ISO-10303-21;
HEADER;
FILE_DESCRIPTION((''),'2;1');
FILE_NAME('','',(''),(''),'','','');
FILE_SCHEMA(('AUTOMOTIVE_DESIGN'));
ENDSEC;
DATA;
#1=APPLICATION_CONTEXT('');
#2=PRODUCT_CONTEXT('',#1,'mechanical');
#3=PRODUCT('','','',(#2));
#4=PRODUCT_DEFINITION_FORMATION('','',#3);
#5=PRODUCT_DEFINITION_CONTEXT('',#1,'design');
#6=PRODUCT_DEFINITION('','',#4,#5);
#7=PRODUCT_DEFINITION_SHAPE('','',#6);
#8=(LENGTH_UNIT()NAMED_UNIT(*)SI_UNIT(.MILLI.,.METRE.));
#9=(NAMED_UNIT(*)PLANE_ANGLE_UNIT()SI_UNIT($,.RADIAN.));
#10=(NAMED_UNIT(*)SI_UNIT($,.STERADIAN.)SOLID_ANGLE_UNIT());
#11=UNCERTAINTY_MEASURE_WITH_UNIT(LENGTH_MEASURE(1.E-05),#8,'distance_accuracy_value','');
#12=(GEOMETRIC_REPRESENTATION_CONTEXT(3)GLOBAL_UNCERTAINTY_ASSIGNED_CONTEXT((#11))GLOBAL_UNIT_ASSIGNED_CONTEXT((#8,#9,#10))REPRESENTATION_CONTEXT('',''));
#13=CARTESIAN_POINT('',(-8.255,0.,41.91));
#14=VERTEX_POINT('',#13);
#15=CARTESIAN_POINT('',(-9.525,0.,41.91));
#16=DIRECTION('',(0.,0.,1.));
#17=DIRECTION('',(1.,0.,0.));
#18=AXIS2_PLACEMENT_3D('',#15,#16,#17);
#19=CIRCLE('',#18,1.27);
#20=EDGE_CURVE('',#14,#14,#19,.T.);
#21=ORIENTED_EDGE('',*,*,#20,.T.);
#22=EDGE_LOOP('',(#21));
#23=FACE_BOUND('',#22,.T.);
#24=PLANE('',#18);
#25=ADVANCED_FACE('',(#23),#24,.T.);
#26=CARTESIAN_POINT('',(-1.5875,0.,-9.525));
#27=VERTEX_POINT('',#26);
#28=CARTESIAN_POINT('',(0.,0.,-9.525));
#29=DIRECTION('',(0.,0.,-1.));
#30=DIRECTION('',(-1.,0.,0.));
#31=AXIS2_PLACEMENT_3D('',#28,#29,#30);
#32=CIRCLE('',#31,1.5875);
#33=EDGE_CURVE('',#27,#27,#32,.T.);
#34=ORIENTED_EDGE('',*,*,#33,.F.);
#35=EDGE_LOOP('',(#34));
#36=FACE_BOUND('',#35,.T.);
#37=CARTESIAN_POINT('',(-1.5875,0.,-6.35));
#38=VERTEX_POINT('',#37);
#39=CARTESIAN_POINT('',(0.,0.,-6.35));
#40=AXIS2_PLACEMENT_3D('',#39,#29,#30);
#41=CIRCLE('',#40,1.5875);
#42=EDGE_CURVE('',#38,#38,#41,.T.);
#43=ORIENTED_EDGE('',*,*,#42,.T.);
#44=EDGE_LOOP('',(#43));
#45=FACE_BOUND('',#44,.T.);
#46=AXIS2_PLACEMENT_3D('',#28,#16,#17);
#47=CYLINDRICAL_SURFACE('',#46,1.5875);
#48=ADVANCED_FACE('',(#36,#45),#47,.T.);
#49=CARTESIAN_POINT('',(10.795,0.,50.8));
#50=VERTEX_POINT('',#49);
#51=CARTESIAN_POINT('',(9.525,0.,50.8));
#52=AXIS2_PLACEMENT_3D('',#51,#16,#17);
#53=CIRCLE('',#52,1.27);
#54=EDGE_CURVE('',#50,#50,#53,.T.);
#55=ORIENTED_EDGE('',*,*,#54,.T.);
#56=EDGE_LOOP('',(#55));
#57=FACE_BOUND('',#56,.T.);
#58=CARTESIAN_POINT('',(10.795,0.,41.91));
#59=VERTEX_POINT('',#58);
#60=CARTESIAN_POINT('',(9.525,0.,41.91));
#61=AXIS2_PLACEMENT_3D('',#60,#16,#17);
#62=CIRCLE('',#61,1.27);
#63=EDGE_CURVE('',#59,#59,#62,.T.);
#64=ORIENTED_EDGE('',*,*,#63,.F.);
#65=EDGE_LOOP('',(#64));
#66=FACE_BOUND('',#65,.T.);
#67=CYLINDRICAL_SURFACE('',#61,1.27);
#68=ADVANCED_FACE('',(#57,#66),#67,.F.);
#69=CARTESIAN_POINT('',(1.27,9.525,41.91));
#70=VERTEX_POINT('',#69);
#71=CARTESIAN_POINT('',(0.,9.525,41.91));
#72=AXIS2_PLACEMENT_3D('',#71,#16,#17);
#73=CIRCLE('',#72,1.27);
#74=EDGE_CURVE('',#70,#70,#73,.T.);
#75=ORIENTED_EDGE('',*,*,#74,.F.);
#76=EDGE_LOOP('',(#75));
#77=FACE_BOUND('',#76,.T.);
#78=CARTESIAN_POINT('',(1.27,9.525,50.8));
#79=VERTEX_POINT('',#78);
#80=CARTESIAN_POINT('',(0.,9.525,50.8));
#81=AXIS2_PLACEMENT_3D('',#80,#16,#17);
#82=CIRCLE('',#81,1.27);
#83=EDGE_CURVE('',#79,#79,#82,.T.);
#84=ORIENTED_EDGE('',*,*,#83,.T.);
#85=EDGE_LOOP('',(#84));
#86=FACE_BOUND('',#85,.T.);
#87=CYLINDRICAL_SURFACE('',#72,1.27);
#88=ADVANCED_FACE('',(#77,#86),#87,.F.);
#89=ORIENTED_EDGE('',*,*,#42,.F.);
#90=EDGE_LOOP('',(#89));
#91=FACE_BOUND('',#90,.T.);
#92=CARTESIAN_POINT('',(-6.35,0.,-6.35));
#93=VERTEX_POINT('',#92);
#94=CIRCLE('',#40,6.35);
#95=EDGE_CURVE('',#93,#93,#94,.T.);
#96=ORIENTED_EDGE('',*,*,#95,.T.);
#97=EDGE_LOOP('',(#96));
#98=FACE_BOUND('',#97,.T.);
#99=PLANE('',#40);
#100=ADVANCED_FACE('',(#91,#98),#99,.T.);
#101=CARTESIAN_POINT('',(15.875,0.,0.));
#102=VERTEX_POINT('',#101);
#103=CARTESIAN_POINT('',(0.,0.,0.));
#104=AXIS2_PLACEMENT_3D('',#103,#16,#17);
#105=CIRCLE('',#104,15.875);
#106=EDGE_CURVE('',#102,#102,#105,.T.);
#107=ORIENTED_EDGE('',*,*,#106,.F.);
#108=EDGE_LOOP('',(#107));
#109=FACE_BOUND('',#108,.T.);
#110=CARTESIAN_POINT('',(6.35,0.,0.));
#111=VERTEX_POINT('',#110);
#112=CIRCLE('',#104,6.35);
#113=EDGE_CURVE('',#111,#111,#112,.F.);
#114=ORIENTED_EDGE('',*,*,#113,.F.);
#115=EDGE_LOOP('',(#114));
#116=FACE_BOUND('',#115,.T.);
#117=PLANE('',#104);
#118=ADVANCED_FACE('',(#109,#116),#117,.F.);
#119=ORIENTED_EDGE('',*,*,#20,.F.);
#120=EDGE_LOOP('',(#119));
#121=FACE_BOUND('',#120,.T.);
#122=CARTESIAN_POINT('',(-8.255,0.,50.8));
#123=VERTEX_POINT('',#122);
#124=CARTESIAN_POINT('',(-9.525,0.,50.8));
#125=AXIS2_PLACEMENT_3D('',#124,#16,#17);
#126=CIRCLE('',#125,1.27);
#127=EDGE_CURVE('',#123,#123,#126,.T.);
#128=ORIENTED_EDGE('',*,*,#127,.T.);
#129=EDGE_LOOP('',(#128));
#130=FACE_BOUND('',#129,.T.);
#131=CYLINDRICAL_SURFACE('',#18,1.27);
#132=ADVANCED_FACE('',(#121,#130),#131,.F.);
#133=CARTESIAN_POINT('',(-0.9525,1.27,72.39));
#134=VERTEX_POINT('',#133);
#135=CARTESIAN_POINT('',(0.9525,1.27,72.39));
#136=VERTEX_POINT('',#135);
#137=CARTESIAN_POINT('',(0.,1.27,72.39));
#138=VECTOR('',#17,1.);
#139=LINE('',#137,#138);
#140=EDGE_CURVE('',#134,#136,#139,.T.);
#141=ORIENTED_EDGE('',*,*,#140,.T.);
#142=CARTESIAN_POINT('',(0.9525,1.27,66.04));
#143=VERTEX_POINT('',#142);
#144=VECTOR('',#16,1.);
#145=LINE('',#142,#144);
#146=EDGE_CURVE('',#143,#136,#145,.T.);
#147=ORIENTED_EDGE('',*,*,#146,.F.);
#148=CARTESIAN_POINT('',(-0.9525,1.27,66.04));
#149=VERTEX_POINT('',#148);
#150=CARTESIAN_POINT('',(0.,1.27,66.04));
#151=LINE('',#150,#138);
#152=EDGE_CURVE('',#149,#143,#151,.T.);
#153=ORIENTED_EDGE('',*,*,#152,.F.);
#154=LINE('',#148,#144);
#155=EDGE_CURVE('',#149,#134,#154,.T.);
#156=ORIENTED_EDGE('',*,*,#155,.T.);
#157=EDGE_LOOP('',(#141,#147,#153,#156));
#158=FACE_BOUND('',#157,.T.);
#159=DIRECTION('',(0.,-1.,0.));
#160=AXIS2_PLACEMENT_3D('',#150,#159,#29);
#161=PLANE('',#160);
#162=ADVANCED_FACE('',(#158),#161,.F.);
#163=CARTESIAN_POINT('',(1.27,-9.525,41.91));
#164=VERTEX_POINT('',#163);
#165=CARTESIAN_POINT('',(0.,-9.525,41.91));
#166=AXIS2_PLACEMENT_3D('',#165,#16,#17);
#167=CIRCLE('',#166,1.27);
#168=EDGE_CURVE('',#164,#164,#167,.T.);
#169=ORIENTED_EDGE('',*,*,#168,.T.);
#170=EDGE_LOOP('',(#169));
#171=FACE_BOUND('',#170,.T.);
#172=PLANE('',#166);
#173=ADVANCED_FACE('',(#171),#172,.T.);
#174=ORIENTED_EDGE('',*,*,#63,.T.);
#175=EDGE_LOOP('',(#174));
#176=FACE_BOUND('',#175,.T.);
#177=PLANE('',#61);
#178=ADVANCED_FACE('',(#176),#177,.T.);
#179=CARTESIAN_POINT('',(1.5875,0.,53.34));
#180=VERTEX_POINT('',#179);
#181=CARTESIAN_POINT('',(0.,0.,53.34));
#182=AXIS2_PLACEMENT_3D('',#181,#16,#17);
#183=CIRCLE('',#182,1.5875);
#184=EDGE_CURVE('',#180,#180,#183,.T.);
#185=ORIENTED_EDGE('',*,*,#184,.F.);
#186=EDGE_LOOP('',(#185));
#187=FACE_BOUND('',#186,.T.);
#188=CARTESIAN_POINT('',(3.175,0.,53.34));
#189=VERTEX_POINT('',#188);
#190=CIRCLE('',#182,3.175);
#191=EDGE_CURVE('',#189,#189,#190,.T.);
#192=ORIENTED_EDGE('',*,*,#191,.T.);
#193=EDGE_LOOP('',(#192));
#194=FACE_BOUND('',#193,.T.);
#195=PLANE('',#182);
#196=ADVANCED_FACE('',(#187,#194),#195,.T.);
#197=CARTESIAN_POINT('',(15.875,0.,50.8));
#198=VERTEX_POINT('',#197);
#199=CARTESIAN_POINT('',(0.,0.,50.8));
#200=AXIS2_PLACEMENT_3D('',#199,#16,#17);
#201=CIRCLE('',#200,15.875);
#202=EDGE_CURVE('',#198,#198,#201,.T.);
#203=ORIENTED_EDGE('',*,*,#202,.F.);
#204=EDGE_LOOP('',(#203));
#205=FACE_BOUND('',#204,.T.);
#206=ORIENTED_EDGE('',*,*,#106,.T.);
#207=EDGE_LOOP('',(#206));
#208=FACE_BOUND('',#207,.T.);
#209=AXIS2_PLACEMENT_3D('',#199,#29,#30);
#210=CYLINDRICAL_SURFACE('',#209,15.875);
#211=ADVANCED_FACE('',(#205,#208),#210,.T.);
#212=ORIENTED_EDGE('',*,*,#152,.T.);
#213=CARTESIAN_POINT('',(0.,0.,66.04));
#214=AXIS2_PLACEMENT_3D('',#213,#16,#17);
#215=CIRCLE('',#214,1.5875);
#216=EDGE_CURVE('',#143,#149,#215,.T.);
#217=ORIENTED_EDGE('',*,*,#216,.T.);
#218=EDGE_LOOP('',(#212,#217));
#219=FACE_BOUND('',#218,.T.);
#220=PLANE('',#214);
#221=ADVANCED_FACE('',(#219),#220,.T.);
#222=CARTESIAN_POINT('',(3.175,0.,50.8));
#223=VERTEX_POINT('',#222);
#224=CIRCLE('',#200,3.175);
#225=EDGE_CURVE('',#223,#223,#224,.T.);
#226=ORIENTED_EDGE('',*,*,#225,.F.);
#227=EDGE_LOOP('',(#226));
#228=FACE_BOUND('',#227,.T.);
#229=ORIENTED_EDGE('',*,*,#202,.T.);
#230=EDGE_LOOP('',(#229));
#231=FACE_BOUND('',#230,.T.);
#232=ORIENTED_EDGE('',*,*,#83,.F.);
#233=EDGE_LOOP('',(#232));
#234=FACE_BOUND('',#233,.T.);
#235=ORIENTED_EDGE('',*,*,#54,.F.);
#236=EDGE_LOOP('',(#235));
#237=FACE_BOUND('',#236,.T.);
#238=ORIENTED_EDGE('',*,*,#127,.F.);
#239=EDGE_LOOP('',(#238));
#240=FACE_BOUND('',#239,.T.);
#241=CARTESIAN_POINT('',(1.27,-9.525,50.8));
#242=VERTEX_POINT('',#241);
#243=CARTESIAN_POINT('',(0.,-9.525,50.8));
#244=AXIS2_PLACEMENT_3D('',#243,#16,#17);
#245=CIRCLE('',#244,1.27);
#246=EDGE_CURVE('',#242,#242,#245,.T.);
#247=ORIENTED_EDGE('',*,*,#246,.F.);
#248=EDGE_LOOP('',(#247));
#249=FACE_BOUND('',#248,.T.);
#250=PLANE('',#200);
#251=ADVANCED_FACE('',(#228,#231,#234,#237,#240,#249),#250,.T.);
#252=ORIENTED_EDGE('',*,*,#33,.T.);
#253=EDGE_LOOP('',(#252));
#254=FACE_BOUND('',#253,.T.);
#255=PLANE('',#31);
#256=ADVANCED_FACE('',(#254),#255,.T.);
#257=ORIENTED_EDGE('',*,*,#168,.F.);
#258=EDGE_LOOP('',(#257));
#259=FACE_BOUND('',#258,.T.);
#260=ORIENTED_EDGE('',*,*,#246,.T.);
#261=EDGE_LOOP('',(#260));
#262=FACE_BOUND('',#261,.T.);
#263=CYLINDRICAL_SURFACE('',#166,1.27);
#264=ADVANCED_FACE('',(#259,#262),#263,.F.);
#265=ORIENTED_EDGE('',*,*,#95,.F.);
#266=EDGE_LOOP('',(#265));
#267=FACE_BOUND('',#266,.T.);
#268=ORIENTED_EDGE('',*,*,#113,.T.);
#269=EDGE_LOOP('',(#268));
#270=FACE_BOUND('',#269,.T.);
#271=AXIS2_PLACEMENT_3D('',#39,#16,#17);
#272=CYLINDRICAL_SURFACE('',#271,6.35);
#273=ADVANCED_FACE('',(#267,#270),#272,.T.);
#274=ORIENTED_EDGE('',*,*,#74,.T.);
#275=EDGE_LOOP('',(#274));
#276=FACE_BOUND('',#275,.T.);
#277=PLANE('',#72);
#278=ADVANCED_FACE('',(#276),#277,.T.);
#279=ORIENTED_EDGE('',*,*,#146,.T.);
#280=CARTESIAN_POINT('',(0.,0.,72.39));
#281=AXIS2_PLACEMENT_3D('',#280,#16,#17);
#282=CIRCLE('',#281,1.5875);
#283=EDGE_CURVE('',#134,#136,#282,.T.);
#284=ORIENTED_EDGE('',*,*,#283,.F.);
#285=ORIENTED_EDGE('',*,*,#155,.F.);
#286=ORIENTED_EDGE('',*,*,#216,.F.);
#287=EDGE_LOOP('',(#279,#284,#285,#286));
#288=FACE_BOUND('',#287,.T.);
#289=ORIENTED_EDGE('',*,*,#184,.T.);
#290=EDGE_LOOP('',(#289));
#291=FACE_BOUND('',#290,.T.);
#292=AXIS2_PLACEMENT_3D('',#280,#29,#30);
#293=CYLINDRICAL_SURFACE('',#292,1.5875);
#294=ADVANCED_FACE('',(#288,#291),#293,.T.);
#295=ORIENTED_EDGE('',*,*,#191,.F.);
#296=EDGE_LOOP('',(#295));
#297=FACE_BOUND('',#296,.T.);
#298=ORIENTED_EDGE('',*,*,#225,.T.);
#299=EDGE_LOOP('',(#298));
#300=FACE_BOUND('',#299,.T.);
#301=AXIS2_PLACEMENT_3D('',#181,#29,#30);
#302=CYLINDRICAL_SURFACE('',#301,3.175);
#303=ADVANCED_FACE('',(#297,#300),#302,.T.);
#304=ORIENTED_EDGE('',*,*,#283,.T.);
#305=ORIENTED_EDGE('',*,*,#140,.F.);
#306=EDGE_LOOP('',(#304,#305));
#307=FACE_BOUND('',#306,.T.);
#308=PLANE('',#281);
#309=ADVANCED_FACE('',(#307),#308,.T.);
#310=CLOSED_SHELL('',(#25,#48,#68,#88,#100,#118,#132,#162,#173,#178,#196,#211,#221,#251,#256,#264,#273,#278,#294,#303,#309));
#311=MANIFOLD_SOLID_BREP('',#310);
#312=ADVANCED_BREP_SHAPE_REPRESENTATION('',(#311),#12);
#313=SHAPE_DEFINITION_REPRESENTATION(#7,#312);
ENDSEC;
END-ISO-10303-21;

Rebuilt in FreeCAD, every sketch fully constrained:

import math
import FreeCAD as App
import Part
import Sketcher
Q = App.Units.Quantity

doc = App.newDocument("Part")
params = doc.addObject("Spreadsheet::Sheet", "Params")
for row, (alias, value) in enumerate([
    ("sketch1_diameter", "1.25 in"),
    ("pad1_length", "2 in"),
    ("sketch2_diameter", "0.5 in"),
    ("pad2_length", "0.25 in"),
    ("sketch3_diameter", "0.125 in"),
    ("pad3_length", "0.125 in"),
    ("sketch4_diameter", "0.25 in"),
    ("pad4_length", "0.1 in"),
    ("sketch5_diameter", "0.125 in"),
    ("pad5_length", "0.75 in"),
    ("sketch6_radius", "0.0625 in"),
    ("sketch6_width", "0.075 in"),
    ("pocket1_length", "0.25 in"),
    ("sketch7_diameter", "0.1 in"),
    ("pocket2_length", "0.35 in"),
], start=1):
    params.set(f"A{row}", alias)
    params.set(f"B{row}", "=" + value)
    params.setAlias(f"B{row}", alias)

body = doc.addObject("PartDesign::Body", "Body")

# Sketch on XY plane
sketch1 = body.newObject("Sketcher::SketchObject", "Sketch")
sketch1.AttachmentSupport = (doc.getObject("XY_Plane"), [""])
sketch1.MapMode = "FlatFace"
sketch1.addGeometry(Part.Circle(App.Vector(0, 0, 0), App.Vector(0, 0, 1), 15.875), False)
sketch1.addConstraint([
    Sketcher.Constraint("Coincident", 0, 3, -1, 1),
    Sketcher.Constraint("Diameter", 0, Q("1.25 in")),
])
sketch1.setExpression("Constraints[1]", "Params.sketch1_diameter")
pad1 = body.newObject("PartDesign::Pad", "Pad")
pad1.Profile = sketch1
pad1.setExpression("Length", "Params.pad1_length")

# Sketch on XY plane
sketch2 = body.newObject("Sketcher::SketchObject", "Sketch001")
sketch2.AttachmentSupport = (doc.getObject("XY_Plane"), [""])
sketch2.MapMode = "FlatFace"
sketch2.addGeometry(Part.Circle(App.Vector(0, 0, 0), App.Vector(0, 0, 1), 6.35), False)
sketch2.addConstraint([
    Sketcher.Constraint("Coincident", 0, 3, -1, 1),
    Sketcher.Constraint("Diameter", 0, Q("0.5 in")),
])
sketch2.setExpression("Constraints[1]", "Params.sketch2_diameter")
pad2 = body.newObject("PartDesign::Pad", "Pad001")
pad2.Profile = sketch2
pad2.setExpression("Length", "Params.pad2_length")
pad2.Reversed = True

# Sketch on XY plane
sketch3 = body.newObject("Sketcher::SketchObject", "Sketch002")
sketch3.AttachmentSupport = (doc.getObject("XY_Plane"), [""])
sketch3.MapMode = "FlatFace"
sketch3.AttachmentOffset = App.Placement(App.Vector(0, 0, -0.25 * 25.4), App.Rotation())
sketch3.addGeometry(Part.Circle(App.Vector(0, 0, 0), App.Vector(0, 0, 1), 1.5875), False)
sketch3.addConstraint([
    Sketcher.Constraint("Coincident", 0, 3, -1, 1),
    Sketcher.Constraint("Diameter", 0, Q("0.125 in")),
])
sketch3.setExpression("Constraints[1]", "Params.sketch3_diameter")
pad3 = body.newObject("PartDesign::Pad", "Pad002")
pad3.Profile = sketch3
pad3.setExpression("Length", "Params.pad3_length")
pad3.Reversed = True

# Sketch on XY plane
sketch4 = body.newObject("Sketcher::SketchObject", "Sketch003")
sketch4.AttachmentSupport = (doc.getObject("XY_Plane"), [""])
sketch4.MapMode = "FlatFace"
sketch4.AttachmentOffset = App.Placement(App.Vector(0, 0, 2 * 25.4), App.Rotation())
sketch4.addGeometry(Part.Circle(App.Vector(0, 0, 0), App.Vector(0, 0, 1), 3.175), False)
sketch4.addConstraint([
    Sketcher.Constraint("Coincident", 0, 3, -1, 1),
    Sketcher.Constraint("Diameter", 0, Q("0.25 in")),
])
sketch4.setExpression("Constraints[1]", "Params.sketch4_diameter")
pad4 = body.newObject("PartDesign::Pad", "Pad003")
pad4.Profile = sketch4
pad4.setExpression("Length", "Params.pad4_length")

# Sketch on XY plane
sketch5 = body.newObject("Sketcher::SketchObject", "Sketch004")
sketch5.AttachmentSupport = (doc.getObject("XY_Plane"), [""])
sketch5.MapMode = "FlatFace"
sketch5.AttachmentOffset = App.Placement(App.Vector(0, 0, 2.85 * 25.4), App.Rotation())
sketch5.addGeometry(Part.Circle(App.Vector(0, 0, 0), App.Vector(0, 0, 1), 1.5875), False)
sketch5.addConstraint([
    Sketcher.Constraint("Coincident", 0, 3, -1, 1),
    Sketcher.Constraint("Diameter", 0, Q("0.125 in")),
])
sketch5.setExpression("Constraints[1]", "Params.sketch5_diameter")
pad5 = body.newObject("PartDesign::Pad", "Pad004")
pad5.Profile = sketch5
pad5.setExpression("Length", "Params.pad5_length")
pad5.Reversed = True

# Sketch on XY plane
sketch6 = body.newObject("Sketcher::SketchObject", "Sketch005")
sketch6.AttachmentSupport = (doc.getObject("XY_Plane"), [""])
sketch6.MapMode = "FlatFace"
sketch6.AttachmentOffset = App.Placement(App.Vector(0, 0, 2.85 * 25.4), App.Rotation())
sketch6.addGeometry([
    Part.LineSegment(App.Vector(-0.9525, 1.27, 0), App.Vector(0.9525, 1.27, 0)),
    Part.ArcOfCircle(Part.Circle(App.Vector(0, 0, 0), App.Vector(0, 0, 1), 1.5875), math.radians(53.130102), math.radians(126.869898)),
], False)
sketch6.addConstraint([
    Sketcher.Constraint("Coincident", 0, 1, 1, 2),
    Sketcher.Constraint("Coincident", 1, 1, 0, 2),
    Sketcher.Constraint("Horizontal", 0),
    Sketcher.Constraint("Coincident", 1, 3, -1, 1),
    Sketcher.Constraint("Radius", 1, Q("0.0625 in")),
    Sketcher.Constraint("DistanceX", 0, 1, 0, 2, Q("0.075 in")),
])
sketch6.setExpression("Constraints[4]", "Params.sketch6_radius")
sketch6.setExpression("Constraints[5]", "Params.sketch6_width")
pocket1 = body.newObject("PartDesign::Pocket", "Pocket")
pocket1.Profile = sketch6
pocket1.setExpression("Length", "Params.pocket1_length")

# Sketch on XY plane
sketch7 = body.newObject("Sketcher::SketchObject", "Sketch006")
sketch7.AttachmentSupport = (doc.getObject("XY_Plane"), [""])
sketch7.MapMode = "FlatFace"
sketch7.AttachmentOffset = App.Placement(App.Vector(0, 0, 2 * 25.4), App.Rotation())
sketch7.addGeometry([
    Part.Circle(App.Vector(0, 9.525, 0), App.Vector(0, 0, 1), 1.27),
    Part.Circle(App.Vector(9.525, 0, 0), App.Vector(0, 0, 1), 1.27),
    Part.Circle(App.Vector(0, -9.525, 0), App.Vector(0, 0, 1), 1.27),
    Part.Circle(App.Vector(-9.525, 0, 0), App.Vector(0, 0, 1), 1.27),
], False)
sketch7.addConstraint([
    Sketcher.Constraint("Equal", 0, 1),
    Sketcher.Constraint("Equal", 1, 2),
    Sketcher.Constraint("Equal", 2, 3),
    Sketcher.Constraint("Symmetric", 0, 3, 2, 3, -1, 1),
    Sketcher.Constraint("Symmetric", 1, 3, 3, 3, -1, 1),
    Sketcher.Constraint("PointOnObject", 0, 3, -2),
    Sketcher.Constraint("PointOnObject", 1, 3, -1),
    Sketcher.Constraint("Diameter", 0, Q("0.1 in")),
    Sketcher.Constraint("DistanceY", 2, 3, 0, 3, Q("0.75 in")),
    Sketcher.Constraint("DistanceX", 3, 3, 1, 3, Q("0.75 in")),
])
sketch7.setExpression("Constraints[7]", "Params.sketch7_diameter")
pocket2 = body.newObject("PartDesign::Pocket", "Pocket001")
pocket2.Profile = sketch7
pocket2.setExpression("Length", "Params.pocket2_length")

doc.recompute()
